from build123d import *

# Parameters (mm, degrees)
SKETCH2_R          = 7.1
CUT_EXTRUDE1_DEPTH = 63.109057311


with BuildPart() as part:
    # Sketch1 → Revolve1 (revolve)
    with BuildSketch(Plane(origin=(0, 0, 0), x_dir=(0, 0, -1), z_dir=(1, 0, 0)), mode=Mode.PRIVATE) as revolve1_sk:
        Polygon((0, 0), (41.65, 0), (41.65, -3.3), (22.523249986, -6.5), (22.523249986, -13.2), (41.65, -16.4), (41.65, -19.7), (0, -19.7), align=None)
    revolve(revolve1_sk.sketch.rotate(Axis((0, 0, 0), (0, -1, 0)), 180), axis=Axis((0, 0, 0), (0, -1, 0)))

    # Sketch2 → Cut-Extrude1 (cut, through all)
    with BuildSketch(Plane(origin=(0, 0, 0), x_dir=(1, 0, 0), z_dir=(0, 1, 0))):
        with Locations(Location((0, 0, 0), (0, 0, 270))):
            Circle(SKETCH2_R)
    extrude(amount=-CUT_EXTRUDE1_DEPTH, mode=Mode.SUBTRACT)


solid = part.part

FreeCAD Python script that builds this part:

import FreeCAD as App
import Part
import Sketcher

V = App.Vector

doc = App.newDocument("Part")
body = doc.addObject("PartDesign::Body", "Body")

# Sketch on YZ plane
sketch1 = body.newObject("Sketcher::SketchObject", "Sketch")
sketch1.AttachmentSupport = (doc.getObject("YZ_Plane"), [""])
sketch1.MapMode = "FlatFace"
sketch1.addGeometry([
    Part.LineSegment(V(0, -41.6, 0), V(0, 0, 0)),  # 0
    Part.LineSegment(V(0, 0, 0), V(-19.7, 0, 0)),  # 1
    Part.LineSegment(V(-19.7, 0, 0), V(-19.7, -41.6, 0)),  # 2
    Part.LineSegment(V(-19.7, -41.6, 0), V(-16.4, -41.6, 0)),  # 3
    Part.LineSegment(V(-16.4, -41.6, 0), V(-13.2, -22.5, 0)),  # 4
    Part.LineSegment(V(-13.2, -22.5, 0), V(-6.5, -22.5, 0)),  # 5
    Part.LineSegment(V(-6.5, -22.5, 0), V(-3.3, -41.6, 0)),  # 6
    Part.LineSegment(V(-3.3, -41.6, 0), V(0, -41.6, 0)),  # 7
], False)
sketch1.addConstraint([
    Sketcher.Constraint("Coincident", 0, 2, 1, 1),
    Sketcher.Constraint("Coincident", 1, 2, 2, 1),
    Sketcher.Constraint("Coincident", 2, 2, 3, 1),
    Sketcher.Constraint("Coincident", 3, 2, 4, 1),
    Sketcher.Constraint("Coincident", 4, 2, 5, 1),
    Sketcher.Constraint("Coincident", 5, 2, 6, 1),
    Sketcher.Constraint("Coincident", 6, 2, 7, 1),
    Sketcher.Constraint("Coincident", 7, 2, 0, 1),
    Sketcher.Constraint("Vertical", 0),
    Sketcher.Constraint("Horizontal", 1),
    Sketcher.Constraint("Vertical", 2),
    Sketcher.Constraint("Horizontal", 3),
    Sketcher.Constraint("Horizontal", 5),
    Sketcher.Constraint("Horizontal", 7),
    Sketcher.Constraint("Coincident", 0, 2, -1, 1),
    Sketcher.Constraint("Horizontal", 3, 2, 6, 2),
    Sketcher.Constraint("Equal", 3, 7),
    Sketcher.Constraint("Equal", 4, 6),
    Sketcher.Constraint("DistanceX", 1, 2, 1, 1, 19.7),
    Sketcher.Constraint("DistanceX", 3, 1, 3, 2, 3.3),
    Sketcher.Constraint("DistanceX", 5, 1, 5, 2, 6.7),
    Sketcher.Constraint("DistanceY", 0, 1, 0, 2, 41.65),
    Sketcher.Constraint("Distance", 4, 19.39259),
])
revolution = body.newObject("PartDesign::Revolution", "Revolution")
revolution.Profile = sketch1
revolution.ReferenceAxis = (sketch1, ["H_Axis"])
revolution.Angle = 360

# Sketch on XZ plane
sketch2 = body.newObject("Sketcher::SketchObject", "Sketch001")
sketch2.AttachmentSupport = (doc.getObject("XZ_Plane"), [""])
sketch2.MapMode = "FlatFace"
sketch2.addGeometry(Part.Circle(V(0, 0, 0), V(0, 0, 1), 7), False)
sketch2.addConstraint([
    Sketcher.Constraint("Coincident", 0, 3, -1, 1),
    Sketcher.Constraint("Diameter", 0, 14.2),
])
pocket1 = body.newObject("PartDesign::Pocket", "Pocket")
pocket1.Profile = sketch2
pocket1.Type = "ThroughAll"
pocket1.Reversed = True

doc.recompute()
